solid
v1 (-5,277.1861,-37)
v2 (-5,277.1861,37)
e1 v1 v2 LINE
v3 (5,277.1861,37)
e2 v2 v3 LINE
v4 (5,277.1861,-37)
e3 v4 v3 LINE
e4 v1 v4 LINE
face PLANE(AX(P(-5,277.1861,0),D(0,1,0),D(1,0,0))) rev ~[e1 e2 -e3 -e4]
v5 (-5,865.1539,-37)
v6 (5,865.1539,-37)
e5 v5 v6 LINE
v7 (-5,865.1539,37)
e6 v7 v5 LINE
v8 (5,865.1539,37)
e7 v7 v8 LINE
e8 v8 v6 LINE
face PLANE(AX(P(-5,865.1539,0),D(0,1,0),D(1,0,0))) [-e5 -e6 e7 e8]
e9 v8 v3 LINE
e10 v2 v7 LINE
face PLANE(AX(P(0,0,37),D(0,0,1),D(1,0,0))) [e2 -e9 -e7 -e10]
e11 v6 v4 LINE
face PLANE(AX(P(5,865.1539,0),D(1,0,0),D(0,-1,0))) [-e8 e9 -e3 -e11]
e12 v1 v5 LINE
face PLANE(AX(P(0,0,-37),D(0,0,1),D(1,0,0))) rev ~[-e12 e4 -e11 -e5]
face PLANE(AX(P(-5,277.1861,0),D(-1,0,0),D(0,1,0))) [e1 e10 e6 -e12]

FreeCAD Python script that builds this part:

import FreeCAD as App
import Part
import Sketcher

V = App.Vector
Q = App.Units.Quantity


def add_polygon(sketch, points):
    """Adds a closed chain of lines whose ends are joined by coincident constraints."""
    first, n = sketch.GeometryCount, len(points)
    for a, b in zip(points, points[1:] + points[:1]):
        sketch.addGeometry(Part.LineSegment(App.Vector(*a, 0), App.Vector(*b, 0)), False)
    for i in range(n):
        sketch.addConstraint(Sketcher.Constraint("Coincident", first + i, 2, first + (i + 1) % n, 1))

doc = App.newDocument("Part")
body = doc.addObject("PartDesign::Body", "Body")

sketch1 = body.newObject("Sketcher::SketchObject", "Sketch")
sketch1.AttachmentSupport = (doc.getObject("XY_Plane"), [""])
sketch1.MapMode = "FlatFace"
add_polygon(sketch1, [(-5, 865), (-5, 277), (5, 277), (5, 865)])
sketch1.addConstraint(Sketcher.Constraint("Vertical", 0))
sketch1.addConstraint(Sketcher.Constraint("Horizontal", 1))
sketch1.addConstraint(Sketcher.Constraint("Vertical", 2))
sketch1.addConstraint(Sketcher.Constraint("Horizontal", 3))
sketch1.addConstraint(Sketcher.Constraint("DistanceX", 0, 2, -1, 1, Q("5 mm")))
sketch1.addConstraint(Sketcher.Constraint("DistanceX", -1, 1, 1, 2, Q("5 mm")))
sketch1.addConstraint(Sketcher.Constraint("DistanceY", 0, 2, 0, 1, Q("587.9678 mm")))
sketch1.addConstraint(Sketcher.Constraint("DistanceY", -1, 1, 0, 2, Q("277.186 mm")))
pad1 = body.newObject("PartDesign::Pad", "Pad")
pad1.Profile = sketch1
pad1.Length = 74
pad1.Midplane = True

doc.recompute()
